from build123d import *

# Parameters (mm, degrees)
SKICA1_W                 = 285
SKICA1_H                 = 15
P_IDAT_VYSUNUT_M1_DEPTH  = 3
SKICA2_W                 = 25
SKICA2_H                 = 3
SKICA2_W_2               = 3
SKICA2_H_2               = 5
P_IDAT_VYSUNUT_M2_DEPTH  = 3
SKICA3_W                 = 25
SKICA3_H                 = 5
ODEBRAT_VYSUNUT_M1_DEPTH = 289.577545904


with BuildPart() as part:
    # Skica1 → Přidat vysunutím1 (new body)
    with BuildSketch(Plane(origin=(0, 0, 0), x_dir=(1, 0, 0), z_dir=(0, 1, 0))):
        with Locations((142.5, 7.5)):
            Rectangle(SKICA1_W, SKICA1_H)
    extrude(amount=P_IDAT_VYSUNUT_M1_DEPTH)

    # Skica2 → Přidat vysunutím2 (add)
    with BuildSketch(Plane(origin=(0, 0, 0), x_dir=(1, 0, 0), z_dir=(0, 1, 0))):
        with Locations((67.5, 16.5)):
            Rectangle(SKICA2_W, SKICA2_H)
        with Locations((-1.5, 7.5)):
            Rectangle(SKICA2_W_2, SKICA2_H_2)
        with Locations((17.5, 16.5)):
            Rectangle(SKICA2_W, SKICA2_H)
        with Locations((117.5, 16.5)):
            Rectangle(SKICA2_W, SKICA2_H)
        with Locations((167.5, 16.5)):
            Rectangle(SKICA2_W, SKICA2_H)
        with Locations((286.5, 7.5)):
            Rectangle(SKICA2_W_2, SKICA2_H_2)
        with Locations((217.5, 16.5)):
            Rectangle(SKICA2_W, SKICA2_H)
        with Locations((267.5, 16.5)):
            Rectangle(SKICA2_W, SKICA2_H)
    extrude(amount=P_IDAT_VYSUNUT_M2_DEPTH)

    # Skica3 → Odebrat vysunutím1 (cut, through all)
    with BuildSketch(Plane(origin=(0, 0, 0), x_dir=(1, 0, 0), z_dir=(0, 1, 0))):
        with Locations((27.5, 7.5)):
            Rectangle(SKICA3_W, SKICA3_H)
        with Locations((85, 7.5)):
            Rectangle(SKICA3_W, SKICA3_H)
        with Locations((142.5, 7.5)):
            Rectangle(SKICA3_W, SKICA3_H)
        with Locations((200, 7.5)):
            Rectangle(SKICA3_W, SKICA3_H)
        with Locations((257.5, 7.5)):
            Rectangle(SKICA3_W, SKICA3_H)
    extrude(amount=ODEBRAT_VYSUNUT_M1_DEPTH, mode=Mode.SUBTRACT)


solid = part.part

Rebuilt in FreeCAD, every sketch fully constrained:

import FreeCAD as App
import Part
import Sketcher

V = App.Vector
Q = App.Units.Quantity


def add_polygon(sketch, points):
    """Adds a closed chain of lines whose ends are joined by coincident constraints."""
    first, n = sketch.GeometryCount, len(points)
    for a, b in zip(points, points[1:] + points[:1]):
        sketch.addGeometry(Part.LineSegment(App.Vector(*a, 0), App.Vector(*b, 0)), False)
    for i in range(n):
        sketch.addConstraint(Sketcher.Constraint("Coincident", first + i, 2, first + (i + 1) % n, 1))

doc = App.newDocument("Part")
body = doc.addObject("PartDesign::Body", "Body")

sketch1 = body.newObject("Sketcher::SketchObject", "Sketch")
sketch1.AttachmentSupport = (doc.getObject("XZ_Plane"), [""])
sketch1.MapMode = "FlatFace"
add_polygon(sketch1, [(0, -15), (0, 0), (285, 0), (285, -15)])
sketch1.addConstraint([
    Sketcher.Constraint("Vertical", 0),
    Sketcher.Constraint("Horizontal", 1),
    Sketcher.Constraint("Vertical", 2),
    Sketcher.Constraint("Horizontal", 3),
    Sketcher.Constraint("Coincident", 0, 2, -1, 1),
    Sketcher.Constraint("DistanceX", 1, 1, 1, 2, Q("285 mm")),
    Sketcher.Constraint("DistanceY", 0, 1, 0, 2, Q("15 mm")),
])
pad1 = body.newObject("PartDesign::Pad", "Pad")
pad1.Profile = sketch1
pad1.Length = 3
pad1.Reversed = True

sketch2 = body.newObject("Sketcher::SketchObject", "Sketch001")
sketch2.AttachmentSupport = (doc.getObject("XZ_Plane"), [""])
sketch2.MapMode = "FlatFace"
add_polygon(sketch2, [(55, -18), (55, -15), (80, -15), (80, -18)])
add_polygon(sketch2, [(-3, -10), (-3, -5), (0, -5), (0, -10)])
add_polygon(sketch2, [(5, -18), (5, -15), (30, -15), (30, -18)])
add_polygon(sketch2, [(105, -18), (105, -15), (130, -15), (130, -18)])
add_polygon(sketch2, [(155, -18), (155, -15), (180, -15), (180, -18)])
add_polygon(sketch2, [(285, -10), (285, -5), (288, -5), (288, -10)])
add_polygon(sketch2, [(205, -18), (205, -15), (230, -15), (230, -18)])
add_polygon(sketch2, [(255, -18), (255, -15), (280, -15), (280, -18)])
sketch2.addConstraint([
    Sketcher.Constraint("Vertical", 0),
    Sketcher.Constraint("Horizontal", 1),
    Sketcher.Constraint("Vertical", 2),
    Sketcher.Constraint("Horizontal", 3),
    Sketcher.Constraint("Vertical", 4),
    Sketcher.Constraint("Horizontal", 5),
    Sketcher.Constraint("Vertical", 6),
    Sketcher.Constraint("Horizontal", 7),
    Sketcher.Constraint("Vertical", 8),
    Sketcher.Constraint("Horizontal", 9),
    Sketcher.Constraint("Vertical", 10),
    Sketcher.Constraint("Horizontal", 11),
    Sketcher.Constraint("Vertical", 12),
    Sketcher.Constraint("Horizontal", 13),
    Sketcher.Constraint("Vertical", 14),
    Sketcher.Constraint("Horizontal", 15),
    Sketcher.Constraint("Vertical", 16),
    Sketcher.Constraint("Horizontal", 17),
    Sketcher.Constraint("Vertical", 18),
    Sketcher.Constraint("Horizontal", 19),
    Sketcher.Constraint("Vertical", 20),
    Sketcher.Constraint("Horizontal", 21),
    Sketcher.Constraint("Vertical", 22),
    Sketcher.Constraint("Horizontal", 23),
    Sketcher.Constraint("Vertical", 24),
    Sketcher.Constraint("Horizontal", 25),
    Sketcher.Constraint("Vertical", 26),
    Sketcher.Constraint("Horizontal", 27),
    Sketcher.Constraint("Vertical", 28),
    Sketcher.Constraint("Horizontal", 29),
    Sketcher.Constraint("Vertical", 30),
    Sketcher.Constraint("Horizontal", 31),
    Sketcher.Constraint("PointOnObject", 5, 2, -2),
    Sketcher.Constraint("Horizontal", 1, 2, 8, 2),
    Sketcher.Constraint("Horizontal", 3, 2, 10, 2),
    Sketcher.Constraint("Horizontal", 9, 2, 12, 2),
    Sketcher.Constraint("Horizontal", 11, 2, 14, 2),
    Sketcher.Constraint("Horizontal", 13, 2, 16, 2),
    Sketcher.Constraint("Horizontal", 15, 2, 18, 2),
    Sketcher.Constraint("Horizontal", 5, 2, 20, 2),
    Sketcher.Constraint("Horizontal", 7, 2, 22, 2),
    Sketcher.Constraint("Horizontal", 17, 2, 24, 2),
    Sketcher.Constraint("Horizontal", 19, 2, 26, 2),
    Sketcher.Constraint("Horizontal", 25, 2, 28, 2),
    Sketcher.Constraint("Horizontal", 27, 2, 30, 2),
    Sketcher.Constraint("Equal", 3, 9),
    Sketcher.Constraint("Equal", 11, 13),
    Sketcher.Constraint("Equal", 15, 17),
    Sketcher.Constraint("Equal", 7, 21),
    Sketcher.Constraint("Equal", 19, 25),
    Sketcher.Constraint("Equal", 27, 29),
    Sketcher.Constraint("Equal", 23, 0),
    Sketcher.Constraint("DistanceX", 1, 1, 1, 2, Q("25 mm")),
    Sketcher.Constraint("DistanceX", 5, 1, 5, 2, Q("3 mm")),
    Sketcher.Constraint("DistanceY", 4, 1, 4, 2, Q("5 mm")),
    Sketcher.Constraint("DistanceX", -1, 1, 0, 2, Q("55 mm")),
    Sketcher.Constraint("DistanceY", 0, 2, -1, 1, Q("15 mm")),
    Sketcher.Constraint("DistanceY", 4, 2, -1, 1, Q("5 mm")),
    Sketcher.Constraint("DistanceX", -1, 1, 8, 2, Q("5 mm")),
    Sketcher.Constraint("DistanceX", -1, 1, 12, 2, Q("105 mm")),
    Sketcher.Constraint("DistanceX", -1, 1, 16, 2, Q("155 mm")),
    Sketcher.Constraint("DistanceX", -1, 1, 20, 2, Q("285 mm")),
    Sketcher.Constraint("DistanceX", -1, 1, 24, 2, Q("205 mm")),
    Sketcher.Constraint("DistanceX", -1, 1, 28, 2, Q("255 mm")),
])
pad2 = body.newObject("PartDesign::Pad", "Pad001")
pad2.Profile = sketch2
pad2.Length = 3
pad2.Reversed = True

sketch3 = body.newObject("Sketcher::SketchObject", "Sketch002")
sketch3.AttachmentSupport = (doc.getObject("XZ_Plane"), [""])
sketch3.MapMode = "FlatFace"
add_polygon(sketch3, [(15, -10), (15, -5), (40, -5), (40, -10)])
add_polygon(sketch3, [(72, -10), (72, -5), (98, -5), (98, -10)])
add_polygon(sketch3, [(130, -10), (130, -5), (155, -5), (155, -10)])
add_polygon(sketch3, [(188, -10), (188, -5), (212, -5), (212, -10)])
add_polygon(sketch3, [(245, -10), (245, -5), (270, -5), (270, -10)])
sketch3.addConstraint([
    Sketcher.Constraint("Vertical", 0),
    Sketcher.Constraint("Horizontal", 1),
    Sketcher.Constraint("Vertical", 2),
    Sketcher.Constraint("Horizontal", 3),
    Sketcher.Constraint("Vertical", 4),
    Sketcher.Constraint("Horizontal", 5),
    Sketcher.Constraint("Vertical", 6),
    Sketcher.Constraint("Horizontal", 7),
    Sketcher.Constraint("Vertical", 8),
    Sketcher.Constraint("Horizontal", 9),
    Sketcher.Constraint("Vertical", 10),
    Sketcher.Constraint("Horizontal", 11),
    Sketcher.Constraint("Vertical", 12),
    Sketcher.Constraint("Horizontal", 13),
    Sketcher.Constraint("Vertical", 14),
    Sketcher.Constraint("Horizontal", 15),
    Sketcher.Constraint("Vertical", 16),
    Sketcher.Constraint("Horizontal", 17),
    Sketcher.Constraint("Vertical", 18),
    Sketcher.Constraint("Horizontal", 19),
    Sketcher.Constraint("Horizontal", 1, 2, 4, 2),
    Sketcher.Constraint("Horizontal", 3, 2, 6, 2),
    Sketcher.Constraint("Horizontal", 5, 2, 8, 2),
    Sketcher.Constraint("Horizontal", 7, 2, 10, 2),
    Sketcher.Constraint("Horizontal", 9, 2, 12, 2),
    Sketcher.Constraint("Horizontal", 11, 2, 14, 2),
    Sketcher.Constraint("Horizontal", 13, 2, 16, 2),
    Sketcher.Constraint("Horizontal", 15, 2, 18, 2),
    Sketcher.Constraint("Equal", 3, 5),
    Sketcher.Constraint("Equal", 7, 9),
    Sketcher.Constraint("Equal", 11, 13),
    Sketcher.Constraint("Equal", 15, 17),
    Sketcher.Constraint("DistanceX", 1, 1, 1, 2, Q("25 mm")),
    Sketcher.Constraint("DistanceY", 0, 1, 0, 2, Q("5 mm")),
    Sketcher.Constraint("DistanceX", -1, 1, 0, 2, Q("15 mm")),
    Sketcher.Constraint("DistanceY", 0, 2, -1, 1, Q("5 mm")),
    Sketcher.Constraint("DistanceX", -1, 1, 8, 2, Q("130 mm")),
    Sketcher.Constraint("DistanceX", -1, 1, 16, 2, Q("245 mm")),
    Sketcher.Constraint("DistanceX", 5, 2, 12, 2, Q("90 mm")),
    Sketcher.Constraint("DistanceX", -1, 1, 4, 2, Q("72.5 mm")),
])
pocket1 = body.newObject("PartDesign::Pocket", "Pocket")
pocket1.Profile = sketch3
pocket1.Type = "ThroughAll"

doc.recompute()
